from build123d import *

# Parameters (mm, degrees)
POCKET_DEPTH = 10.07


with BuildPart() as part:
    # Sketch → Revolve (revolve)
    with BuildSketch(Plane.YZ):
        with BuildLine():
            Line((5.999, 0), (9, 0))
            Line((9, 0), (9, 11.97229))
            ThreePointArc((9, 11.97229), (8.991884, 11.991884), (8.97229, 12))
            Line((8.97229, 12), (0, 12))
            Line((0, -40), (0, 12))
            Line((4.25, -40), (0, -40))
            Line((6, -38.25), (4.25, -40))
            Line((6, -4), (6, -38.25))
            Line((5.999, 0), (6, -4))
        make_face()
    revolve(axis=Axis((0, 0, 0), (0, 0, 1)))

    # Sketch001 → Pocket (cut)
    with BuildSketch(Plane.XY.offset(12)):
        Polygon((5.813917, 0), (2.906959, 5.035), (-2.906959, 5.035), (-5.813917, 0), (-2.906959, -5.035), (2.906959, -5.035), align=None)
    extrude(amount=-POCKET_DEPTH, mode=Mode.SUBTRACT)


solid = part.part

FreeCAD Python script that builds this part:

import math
import FreeCAD as App
import Part
import Sketcher

V = App.Vector
Q = App.Units.Quantity

doc = App.newDocument("Part")
body = doc.addObject("PartDesign::Body", "Body")

sketch1 = body.newObject("Sketcher::SketchObject", "Sketch")
sketch1.AttachmentSupport = (doc.getObject("YZ_Plane"), [""])
sketch1.MapMode = "FlatFace"
sketch1.addGeometry([
    Part.LineSegment(V(5.999, 0, 0), V(9, 0, 0)),
    Part.LineSegment(V(9, 0, 0), V(9, 11.972, 0)),
    Part.ArcOfCircle(Part.Circle(V(8.972, 11.972, 0), V(0, 0, 1), 0.028), math.radians(0), math.radians(90)),
    Part.LineSegment(V(8.972, 12, 0), V(0, 12, 0)),
    Part.LineSegment(V(0, 12, 0), V(0, -40, 0)),
    Part.LineSegment(V(0, -40, 0), V(4.25, -40, 0)),
    Part.LineSegment(V(4.25, -40, 0), V(6, -38.25, 0)),
    Part.LineSegment(V(6, -38.25, 0), V(6, -4, 0)),
    Part.LineSegment(V(6, -4, 0), V(5.999, 0, 0)),
], False)
sketch1.addConstraint([
    Sketcher.Constraint("Coincident", 0, 2, 1, 1),
    Sketcher.Constraint("Coincident", 1, 2, 2, 1),
    Sketcher.Constraint("Coincident", 2, 2, 3, 1),
    Sketcher.Constraint("Coincident", 3, 2, 4, 1),
    Sketcher.Constraint("Coincident", 4, 2, 5, 1),
    Sketcher.Constraint("Coincident", 5, 2, 6, 1),
    Sketcher.Constraint("Coincident", 6, 2, 7, 1),
    Sketcher.Constraint("Coincident", 7, 2, 8, 1),
    Sketcher.Constraint("Coincident", 8, 2, 0, 1),
    Sketcher.Constraint("Horizontal", 0),
    Sketcher.Constraint("Vertical", 1),
    Sketcher.Constraint("Horizontal", 3),
    Sketcher.Constraint("Vertical", 4),
    Sketcher.Constraint("Horizontal", 5),
    Sketcher.Constraint("Vertical", 7),
    Sketcher.Constraint("PointOnObject", 0, 2, -1),
    Sketcher.Constraint("PointOnObject", 3, 2, -2),
    Sketcher.Constraint("Horizontal", 2, 3, 1, 2),
    Sketcher.Constraint("DistanceY", 4, 2, 4, 1, 52.0),
    Sketcher.Constraint("Angle", 6, Q("45 deg")),
    Sketcher.Constraint("Distance", 8, 4.0),
    Sketcher.Constraint("DistanceX", -1, 1, 0, 2, 9.0),
    Sketcher.Constraint("DistanceY", -1, 1, 2, 2, 12.0),
    Sketcher.Constraint("DistanceX", -1, 1, 6, 2, 6.0),
    Sketcher.Constraint("DistanceX", 5, 1, 5, 2, 4.25),
    Sketcher.Constraint("DistanceX", 0, 1, 0, 2, 3.001),
    Sketcher.Constraint("Radius", 2, 0.02771),
    Sketcher.Constraint("DistanceX", 3, 2, 3, 1, 8.97229),
])
revolution = body.newObject("PartDesign::Revolution", "Revolution")
revolution.Profile = sketch1
revolution.ReferenceAxis = (sketch1, ["V_Axis"])
revolution.Angle = 360

sketch2 = body.newObject("Sketcher::SketchObject", "Sketch001")
sketch2.AttachmentSupport = (doc.getObject("XY_Plane"), [""])
sketch2.MapMode = "FlatFace"
sketch2.AttachmentOffset = App.Placement(V(0, 0, 12), App.Rotation())
sketch2.addGeometry([
    Part.LineSegment(V(6, 0, 0), V(3, 5, 0)),
    Part.LineSegment(V(3, 5, 0), V(-3, 5, 0)),
    Part.LineSegment(V(-3, 5, 0), V(-6, 0, 0)),
    Part.LineSegment(V(-6, 0, 0), V(-3, -5, 0)),
    Part.LineSegment(V(-3, -5, 0), V(3, -5, 0)),
    Part.LineSegment(V(3, -5, 0), V(6, 0, 0)),
], False)
sketch2.addConstraint([
    Sketcher.Constraint("Coincident", 0, 2, 1, 1),
    Sketcher.Constraint("Coincident", 1, 2, 2, 1),
    Sketcher.Constraint("Coincident", 2, 2, 3, 1),
    Sketcher.Constraint("Coincident", 3, 2, 4, 1),
    Sketcher.Constraint("Coincident", 4, 2, 5, 1),
    Sketcher.Constraint("Coincident", 5, 2, 0, 1),
    Sketcher.Constraint("Horizontal", 1),
    Sketcher.Constraint("Horizontal", 4),
    Sketcher.Constraint("Symmetric", 0, 2, 3, 2, -1, 1),
    Sketcher.Constraint("Symmetric", 2, 2, 5, 2, -1, 1),
    Sketcher.Constraint("PointOnObject", 2, 2, -1),
    Sketcher.Constraint("Parallel", 2, 5),
    Sketcher.Constraint("Vertical", 1, 2, 3, 2),
    Sketcher.Constraint("Angle", 0, Q("119.999995 deg")),
    Sketcher.Constraint("DistanceY", 3, 2, 1, 2, 10.07),
    Sketcher.Constraint("DistanceX", 1, 2, 1, 1, 5.813918),
])
pocket1 = body.newObject("PartDesign::Pocket", "Pocket")
pocket1.Profile = sketch2
pocket1.Length = 10.07

doc.recompute()
